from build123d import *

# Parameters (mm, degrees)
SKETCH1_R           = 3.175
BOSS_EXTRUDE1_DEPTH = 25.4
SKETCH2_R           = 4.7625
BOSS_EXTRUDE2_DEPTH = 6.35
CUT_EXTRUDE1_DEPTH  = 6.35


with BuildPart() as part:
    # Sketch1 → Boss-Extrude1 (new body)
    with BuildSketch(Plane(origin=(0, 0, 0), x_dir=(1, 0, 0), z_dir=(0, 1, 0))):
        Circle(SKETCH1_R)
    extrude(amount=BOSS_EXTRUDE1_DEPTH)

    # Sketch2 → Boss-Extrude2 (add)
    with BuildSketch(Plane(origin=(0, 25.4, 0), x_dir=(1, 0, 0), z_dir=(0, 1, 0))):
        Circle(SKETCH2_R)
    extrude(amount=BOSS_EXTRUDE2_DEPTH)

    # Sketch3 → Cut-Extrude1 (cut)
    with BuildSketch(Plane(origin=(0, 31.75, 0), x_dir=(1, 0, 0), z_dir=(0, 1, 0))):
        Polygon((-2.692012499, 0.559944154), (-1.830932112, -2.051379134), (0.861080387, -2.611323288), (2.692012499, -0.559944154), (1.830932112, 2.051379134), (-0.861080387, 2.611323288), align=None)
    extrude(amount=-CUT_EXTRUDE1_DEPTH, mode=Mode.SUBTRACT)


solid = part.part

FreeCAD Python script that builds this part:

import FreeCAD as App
import Part
import Sketcher

V = App.Vector
Q = App.Units.Quantity

doc = App.newDocument("Part")
body = doc.addObject("PartDesign::Body", "Body")

sketch1 = doc.addObject("Sketcher::SketchObject", "Sketch")
body.addObject(sketch1)
sketch1.AttachmentSupport = (doc.XZ_Plane, [""])
sketch1.MapMode = "FlatFace"
sketch1.addGeometry(Part.Circle(V(0, 0, 0), V(0, 0, 1), 3.2), False)
sketch1.addConstraint([
    Sketcher.Constraint("Coincident", 0, 3, -1, 1),
    Sketcher.Constraint("Diameter", 0, Q("0.25 in")),
])
pad1 = doc.addObject("PartDesign::Pad", "Pad")
body.addObject(pad1)
pad1.Profile = sketch1
pad1.Length = Q("1 in")
pad1.Reversed = True

sketch2 = doc.addObject("Sketcher::SketchObject", "Sketch001")
body.addObject(sketch2)
sketch2.AttachmentSupport = (doc.XZ_Plane, [""])
sketch2.MapMode = "FlatFace"
sketch2.AttachmentOffset = App.Placement(V(0, 0, -1 * 25.4), App.Rotation())
sketch2.addGeometry(Part.Circle(V(0, 0, 0), V(0, 0, 1), 4.8), False)
sketch2.addConstraint([
    Sketcher.Constraint("Coincident", 0, 3, -1, 1),
    Sketcher.Constraint("Diameter", 0, Q("0.375 in")),
])
pad2 = doc.addObject("PartDesign::Pad", "Pad001")
body.addObject(pad2)
pad2.Profile = sketch2
pad2.Length = Q("0.25 in")
pad2.Reversed = True

sketch3 = doc.addObject("Sketcher::SketchObject", "Sketch002")
body.addObject(sketch3)
sketch3.AttachmentSupport = (doc.XZ_Plane, [""])
sketch3.MapMode = "FlatFace"
sketch3.AttachmentOffset = App.Placement(V(0, 0, -1.25 * 25.4), App.Rotation())
sketch3.addGeometry([
    Part.LineSegment(V(-2.7, -0.6, 0), V(-1.8, 2.1, 0)),
    Part.LineSegment(V(-1.8, 2.1, 0), V(0.9, 2.6, 0)),
    Part.LineSegment(V(0.9, 2.6, 0), V(2.7, 0.6, 0)),
    Part.LineSegment(V(2.7, 0.6, 0), V(1.8, -2.1, 0)),
    Part.LineSegment(V(1.8, -2.1, 0), V(-0.9, -2.6, 0)),
    Part.LineSegment(V(-0.9, -2.6, 0), V(-2.7, -0.6, 0)),
], False)
sketch3.addConstraint([
    Sketcher.Constraint("Coincident", 0, 2, 1, 1),
    Sketcher.Constraint("Coincident", 1, 2, 2, 1),
    Sketcher.Constraint("Coincident", 2, 2, 3, 1),
    Sketcher.Constraint("Coincident", 3, 2, 4, 1),
    Sketcher.Constraint("Coincident", 4, 2, 5, 1),
    Sketcher.Constraint("Coincident", 5, 2, 0, 1),
    Sketcher.Constraint("Symmetric", 0, 2, 3, 2, -1, 1),
    Sketcher.Constraint("Symmetric", 1, 2, 4, 2, -1, 1),
    Sketcher.Constraint("Symmetric", 2, 2, 5, 2, -1, 1),
    Sketcher.Constraint("Equal", 0, 1),
    Sketcher.Constraint("Equal", 1, 2),
    Sketcher.Constraint("Distance", 0, Q("2.749631 mm")),
    Sketcher.Constraint("DistanceY", -1, 1, 0, 2, Q("2.051379 mm")),
    Sketcher.Constraint("DistanceX", -1, 1, 1, 2, Q("0.86108 mm")),
    Sketcher.Constraint("DistanceY", 2, 2, 1, 2, Q("2.051379 mm")),
])
pocket1 = doc.addObject("PartDesign::Pocket", "Pocket")
body.addObject(pocket1)
pocket1.Profile = sketch3
pocket1.Length = Q("0.25 in")
pocket1.Reversed = True

doc.recompute()
